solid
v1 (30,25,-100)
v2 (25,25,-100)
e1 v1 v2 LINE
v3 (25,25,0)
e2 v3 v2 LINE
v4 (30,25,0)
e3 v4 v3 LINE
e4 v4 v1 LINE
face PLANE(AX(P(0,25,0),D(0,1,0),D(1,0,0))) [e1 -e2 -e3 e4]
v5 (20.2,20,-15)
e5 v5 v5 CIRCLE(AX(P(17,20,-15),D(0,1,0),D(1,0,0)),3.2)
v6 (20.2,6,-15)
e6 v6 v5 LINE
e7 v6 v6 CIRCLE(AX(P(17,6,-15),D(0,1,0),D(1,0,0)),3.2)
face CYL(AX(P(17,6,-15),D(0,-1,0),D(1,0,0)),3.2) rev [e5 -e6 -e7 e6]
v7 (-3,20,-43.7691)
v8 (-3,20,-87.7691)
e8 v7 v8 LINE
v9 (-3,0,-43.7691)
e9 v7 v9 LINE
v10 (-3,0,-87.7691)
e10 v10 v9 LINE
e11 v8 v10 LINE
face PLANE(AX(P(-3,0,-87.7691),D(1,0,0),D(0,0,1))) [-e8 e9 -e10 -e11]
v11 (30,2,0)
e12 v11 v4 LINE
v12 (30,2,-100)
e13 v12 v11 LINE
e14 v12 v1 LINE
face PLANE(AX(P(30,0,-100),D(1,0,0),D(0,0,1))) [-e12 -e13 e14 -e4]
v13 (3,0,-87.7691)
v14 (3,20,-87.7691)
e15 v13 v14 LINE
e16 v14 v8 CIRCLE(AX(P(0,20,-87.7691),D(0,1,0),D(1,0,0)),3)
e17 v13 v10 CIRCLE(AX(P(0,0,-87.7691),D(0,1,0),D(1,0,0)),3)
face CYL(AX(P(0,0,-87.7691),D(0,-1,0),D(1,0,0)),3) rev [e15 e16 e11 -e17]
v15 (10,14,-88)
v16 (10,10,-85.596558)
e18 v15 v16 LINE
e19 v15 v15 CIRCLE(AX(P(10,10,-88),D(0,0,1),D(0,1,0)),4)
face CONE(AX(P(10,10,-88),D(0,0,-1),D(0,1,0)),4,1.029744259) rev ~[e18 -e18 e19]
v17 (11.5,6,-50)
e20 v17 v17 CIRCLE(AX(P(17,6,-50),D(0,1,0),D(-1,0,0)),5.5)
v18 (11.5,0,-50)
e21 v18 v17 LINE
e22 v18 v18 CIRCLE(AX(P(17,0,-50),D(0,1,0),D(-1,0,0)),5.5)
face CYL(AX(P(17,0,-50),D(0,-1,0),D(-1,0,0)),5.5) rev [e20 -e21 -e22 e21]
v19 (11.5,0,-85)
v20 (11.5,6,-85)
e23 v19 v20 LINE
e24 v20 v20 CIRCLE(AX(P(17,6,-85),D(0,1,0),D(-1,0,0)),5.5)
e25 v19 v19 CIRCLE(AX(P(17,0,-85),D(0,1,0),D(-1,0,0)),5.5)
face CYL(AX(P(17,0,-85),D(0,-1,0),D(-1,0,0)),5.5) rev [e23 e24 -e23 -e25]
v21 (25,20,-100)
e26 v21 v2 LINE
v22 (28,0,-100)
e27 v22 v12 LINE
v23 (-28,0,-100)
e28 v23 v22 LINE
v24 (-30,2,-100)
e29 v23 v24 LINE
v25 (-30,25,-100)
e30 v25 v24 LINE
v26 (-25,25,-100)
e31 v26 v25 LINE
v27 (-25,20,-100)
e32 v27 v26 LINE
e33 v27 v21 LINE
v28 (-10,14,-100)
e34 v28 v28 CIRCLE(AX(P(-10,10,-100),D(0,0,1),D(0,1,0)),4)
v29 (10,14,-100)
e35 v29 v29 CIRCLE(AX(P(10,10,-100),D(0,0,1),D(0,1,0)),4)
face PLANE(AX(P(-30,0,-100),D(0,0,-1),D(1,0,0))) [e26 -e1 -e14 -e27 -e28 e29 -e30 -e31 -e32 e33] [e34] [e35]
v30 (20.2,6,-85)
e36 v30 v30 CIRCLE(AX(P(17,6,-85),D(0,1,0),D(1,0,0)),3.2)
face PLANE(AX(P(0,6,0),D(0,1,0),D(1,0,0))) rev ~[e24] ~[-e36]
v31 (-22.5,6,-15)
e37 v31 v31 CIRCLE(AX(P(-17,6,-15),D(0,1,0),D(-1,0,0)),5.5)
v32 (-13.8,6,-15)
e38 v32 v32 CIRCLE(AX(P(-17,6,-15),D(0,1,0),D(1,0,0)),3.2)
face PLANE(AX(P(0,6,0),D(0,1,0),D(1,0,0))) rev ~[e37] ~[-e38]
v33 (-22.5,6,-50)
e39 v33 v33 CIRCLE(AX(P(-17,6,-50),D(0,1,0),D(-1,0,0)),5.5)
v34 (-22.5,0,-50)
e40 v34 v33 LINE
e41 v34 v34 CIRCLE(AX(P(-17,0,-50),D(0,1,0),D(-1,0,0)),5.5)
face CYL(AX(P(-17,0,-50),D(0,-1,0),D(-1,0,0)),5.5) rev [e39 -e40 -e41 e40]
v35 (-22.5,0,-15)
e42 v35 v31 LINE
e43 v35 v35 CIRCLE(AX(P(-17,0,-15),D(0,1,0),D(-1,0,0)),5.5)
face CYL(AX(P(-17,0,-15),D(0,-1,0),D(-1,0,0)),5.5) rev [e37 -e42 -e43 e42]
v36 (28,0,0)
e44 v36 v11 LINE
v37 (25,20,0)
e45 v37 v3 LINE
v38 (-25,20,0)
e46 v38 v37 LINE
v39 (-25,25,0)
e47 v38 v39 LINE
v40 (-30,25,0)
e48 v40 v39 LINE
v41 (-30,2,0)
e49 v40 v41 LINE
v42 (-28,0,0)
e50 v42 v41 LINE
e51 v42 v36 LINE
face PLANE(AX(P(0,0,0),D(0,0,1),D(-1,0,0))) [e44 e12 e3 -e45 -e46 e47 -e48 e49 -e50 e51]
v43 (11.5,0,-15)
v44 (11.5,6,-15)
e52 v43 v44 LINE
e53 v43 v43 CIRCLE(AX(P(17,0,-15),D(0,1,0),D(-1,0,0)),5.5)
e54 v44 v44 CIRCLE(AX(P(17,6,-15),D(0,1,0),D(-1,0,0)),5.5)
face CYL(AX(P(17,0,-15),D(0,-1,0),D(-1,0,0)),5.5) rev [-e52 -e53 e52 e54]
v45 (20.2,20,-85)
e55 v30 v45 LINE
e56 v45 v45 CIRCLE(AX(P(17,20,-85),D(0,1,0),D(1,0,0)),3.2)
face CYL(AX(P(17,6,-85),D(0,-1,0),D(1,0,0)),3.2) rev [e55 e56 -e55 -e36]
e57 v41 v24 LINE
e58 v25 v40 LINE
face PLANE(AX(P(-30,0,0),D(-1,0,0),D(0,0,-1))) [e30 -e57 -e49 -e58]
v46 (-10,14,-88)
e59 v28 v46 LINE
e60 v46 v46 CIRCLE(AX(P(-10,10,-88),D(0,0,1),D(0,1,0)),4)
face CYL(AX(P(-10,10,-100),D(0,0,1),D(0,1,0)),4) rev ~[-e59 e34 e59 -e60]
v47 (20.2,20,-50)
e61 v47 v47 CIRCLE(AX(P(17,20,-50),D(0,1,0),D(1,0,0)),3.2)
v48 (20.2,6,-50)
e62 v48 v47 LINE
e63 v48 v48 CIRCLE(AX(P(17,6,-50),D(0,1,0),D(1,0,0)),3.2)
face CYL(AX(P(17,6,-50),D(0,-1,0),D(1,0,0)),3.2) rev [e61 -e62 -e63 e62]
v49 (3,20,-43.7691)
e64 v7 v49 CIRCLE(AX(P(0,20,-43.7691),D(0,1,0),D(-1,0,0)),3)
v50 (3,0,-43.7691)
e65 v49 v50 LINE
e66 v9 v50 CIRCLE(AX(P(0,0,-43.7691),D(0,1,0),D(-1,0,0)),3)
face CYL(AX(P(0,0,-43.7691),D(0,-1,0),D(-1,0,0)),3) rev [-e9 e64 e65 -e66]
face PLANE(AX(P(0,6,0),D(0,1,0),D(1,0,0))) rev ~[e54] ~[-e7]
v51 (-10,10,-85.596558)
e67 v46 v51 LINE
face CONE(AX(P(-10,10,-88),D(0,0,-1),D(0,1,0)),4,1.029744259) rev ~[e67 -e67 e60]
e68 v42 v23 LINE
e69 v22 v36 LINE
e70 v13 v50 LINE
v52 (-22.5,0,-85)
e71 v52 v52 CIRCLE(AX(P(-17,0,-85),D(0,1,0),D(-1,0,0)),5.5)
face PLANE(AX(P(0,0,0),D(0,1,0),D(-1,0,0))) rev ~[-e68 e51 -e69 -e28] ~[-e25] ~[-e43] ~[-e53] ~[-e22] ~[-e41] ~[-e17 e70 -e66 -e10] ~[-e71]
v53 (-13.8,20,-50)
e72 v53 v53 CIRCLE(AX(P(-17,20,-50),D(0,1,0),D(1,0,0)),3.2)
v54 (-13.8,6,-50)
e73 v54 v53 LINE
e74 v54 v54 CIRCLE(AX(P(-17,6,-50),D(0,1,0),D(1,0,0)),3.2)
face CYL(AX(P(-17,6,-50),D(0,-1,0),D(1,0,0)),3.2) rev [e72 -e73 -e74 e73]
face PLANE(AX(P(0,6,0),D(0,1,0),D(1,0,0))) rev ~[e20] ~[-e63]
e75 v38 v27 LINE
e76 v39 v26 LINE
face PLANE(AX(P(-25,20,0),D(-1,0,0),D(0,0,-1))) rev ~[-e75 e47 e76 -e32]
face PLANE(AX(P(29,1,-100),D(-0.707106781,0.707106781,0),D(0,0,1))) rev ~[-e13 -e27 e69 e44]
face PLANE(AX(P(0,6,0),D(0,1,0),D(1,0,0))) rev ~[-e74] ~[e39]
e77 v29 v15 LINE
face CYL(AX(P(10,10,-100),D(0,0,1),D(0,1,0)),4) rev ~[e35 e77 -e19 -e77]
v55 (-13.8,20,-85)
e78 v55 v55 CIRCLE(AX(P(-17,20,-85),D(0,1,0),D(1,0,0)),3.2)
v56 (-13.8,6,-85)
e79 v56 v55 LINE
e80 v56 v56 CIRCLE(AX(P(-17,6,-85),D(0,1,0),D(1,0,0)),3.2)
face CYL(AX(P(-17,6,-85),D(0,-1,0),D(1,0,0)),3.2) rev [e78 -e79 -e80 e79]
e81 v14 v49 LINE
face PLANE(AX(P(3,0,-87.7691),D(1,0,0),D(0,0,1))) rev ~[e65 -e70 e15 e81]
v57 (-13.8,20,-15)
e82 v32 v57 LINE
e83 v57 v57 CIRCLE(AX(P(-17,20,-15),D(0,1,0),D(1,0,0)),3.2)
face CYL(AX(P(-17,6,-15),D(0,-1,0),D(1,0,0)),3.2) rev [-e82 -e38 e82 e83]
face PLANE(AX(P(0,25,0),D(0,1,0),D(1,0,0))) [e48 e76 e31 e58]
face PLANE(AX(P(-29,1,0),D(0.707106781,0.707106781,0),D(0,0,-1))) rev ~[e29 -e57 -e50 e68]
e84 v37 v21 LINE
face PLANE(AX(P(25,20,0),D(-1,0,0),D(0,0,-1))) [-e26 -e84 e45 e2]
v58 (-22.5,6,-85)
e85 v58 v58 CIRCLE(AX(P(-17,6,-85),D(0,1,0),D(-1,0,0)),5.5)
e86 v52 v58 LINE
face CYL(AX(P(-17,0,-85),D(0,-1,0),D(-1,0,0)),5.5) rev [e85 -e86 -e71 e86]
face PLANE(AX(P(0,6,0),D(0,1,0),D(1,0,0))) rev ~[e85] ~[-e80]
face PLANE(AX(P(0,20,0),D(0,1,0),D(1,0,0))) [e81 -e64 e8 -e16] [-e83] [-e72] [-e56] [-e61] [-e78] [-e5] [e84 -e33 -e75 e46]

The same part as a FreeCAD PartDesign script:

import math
import FreeCAD as App
import Part
import Sketcher

V = App.Vector
Q = App.Units.Quantity


def edges_at(feature, points):
    """Names of the edges that pass closest to the given points."""
    edges = feature.Shape.Edges
    near = lambda p: min(range(len(edges)), key=lambda i: edges[i].distToShape(Part.Vertex(*p))[0])
    return sorted({f"Edge{near(p) + 1}" for p in points})

doc = App.newDocument("Part")
body = doc.addObject("PartDesign::Body", "Body")

sketch1 = body.newObject("Sketcher::SketchObject", "Sketch")
sketch1.AttachmentSupport = (doc.getObject("XZ_Plane"), [""])
sketch1.MapMode = "FlatFace"
sketch1.addGeometry([
    Part.LineSegment(V(-30, 0, 0), V(30, 0, 0)),
    Part.LineSegment(V(30, 0, 0), V(30, -100, 0)),
    Part.LineSegment(V(30, -100, 0), V(-30, -100, 0)),
    Part.LineSegment(V(-30, -100, 0), V(-30, 0, 0)),
    Part.Circle(V(17, -85, 0), V(0, 0, 1), 5.5),
    Part.Circle(V(-17, -85, 0), V(0, 0, 1), 5.5),
    Part.ArcOfCircle(Part.Circle(V(0, -87.8, 0), V(0, 0, 1), 3), math.radians(180), math.radians(360)),
    Part.LineSegment(V(3, -87.8, 0), V(3, -43.8, 0)),
    Part.ArcOfCircle(Part.Circle(V(0, -43.8, 0), V(0, 0, 1), 3), math.radians(0), math.radians(180)),
    Part.LineSegment(V(-3, -43.8, 0), V(-3, -87.8, 0)),
    Part.Circle(V(17, -50, 0), V(0, 0, 1), 5.5),
    Part.Circle(V(17, -15, 0), V(0, 0, 1), 5.5),
    Part.Circle(V(-17, -50, 0), V(0, 0, 1), 5.5),
    Part.Circle(V(-17, -15, 0), V(0, 0, 1), 5.5),
], False)
sketch1.addConstraint([
    Sketcher.Constraint("Coincident", 0, 2, 1, 1),
    Sketcher.Constraint("Coincident", 1, 2, 2, 1),
    Sketcher.Constraint("Coincident", 2, 2, 3, 1),
    Sketcher.Constraint("Coincident", 3, 2, 0, 1),
    Sketcher.Constraint("Tangent", 6, 2, 7, 1),
    Sketcher.Constraint("Tangent", 7, 2, 8, 1),
    Sketcher.Constraint("Tangent", 8, 2, 9, 1),
    Sketcher.Constraint("Tangent", 9, 2, 6, 1),
    Sketcher.Constraint("Horizontal", 0),
    Sketcher.Constraint("Vertical", 1),
    Sketcher.Constraint("Horizontal", 2),
    Sketcher.Constraint("Vertical", 3),
    Sketcher.Constraint("Vertical", 7),
    Sketcher.Constraint("Vertical", 9),
    Sketcher.Constraint("Equal", 4, 5),
    Sketcher.Constraint("Equal", 5, 10),
    Sketcher.Constraint("Equal", 10, 11),
    Sketcher.Constraint("Equal", 11, 12),
    Sketcher.Constraint("Equal", 12, 13),
    Sketcher.Constraint("Symmetric", 0, 2, 3, 2, -1, 1),
    Sketcher.Constraint("Symmetric", 4, 3, 5, 3, -2),
    Sketcher.Constraint("Symmetric", 10, 3, 12, 3, -2),
    Sketcher.Constraint("Symmetric", 11, 3, 13, 3, -2),
    Sketcher.Constraint("PointOnObject", 6, 3, -2),
    Sketcher.Constraint("Vertical", 4, 3, 10, 3),
    Sketcher.Constraint("Vertical", 10, 3, 11, 3),
    Sketcher.Constraint("Diameter", 4, Q("11 mm")),
    Sketcher.Constraint("Radius", 6, Q("3 mm")),
    Sketcher.Constraint("DistanceY", 1, 2, 1, 1, Q("100 mm")),
    Sketcher.Constraint("DistanceY", 7, 1, 7, 2, Q("44 mm")),
    Sketcher.Constraint("DistanceY", 11, 3, -1, 1, Q("15 mm")),
    Sketcher.Constraint("DistanceX", -1, 1, 0, 2, Q("30 mm")),
    Sketcher.Constraint("DistanceY", 4, 3, 10, 3, Q("35 mm")),
    Sketcher.Constraint("DistanceY", 10, 3, 11, 3, Q("35 mm")),
    Sketcher.Constraint("DistanceX", 11, 3, 0, 2, Q("13 mm")),
    Sketcher.Constraint("DistanceY", 6, 3, -1, 1, Q("87.769 mm")),
])
pad1 = body.newObject("PartDesign::Pad", "Pad")
pad1.Profile = sketch1
pad1.Length = 6
pad1.Reversed = True

sketch2 = body.newObject("Sketcher::SketchObject", "Sketch001")
sketch2.AttachmentSupport = (doc.getObject("XZ_Plane"), [""])
sketch2.MapMode = "FlatFace"
sketch2.AttachmentOffset = App.Placement(V(0, 0, -6), App.Rotation())
sketch2.addGeometry([
    Part.LineSegment(V(30, -100, 0), V(-30, -100, 0)),
    Part.LineSegment(V(-30, -100, 0), V(-30, 0, 0)),
    Part.LineSegment(V(-30, 0, 0), V(30, 0, 0)),
    Part.LineSegment(V(30, 0, 0), V(30, -100, 0)),
    Part.Circle(V(-17, -15, 0), V(0, 0, 1), 3.2),
    Part.Circle(V(17, -15, 0), V(0, 0, 1), 3.2),
    Part.Circle(V(-17, -50, 0), V(0, 0, 1), 3.2),
    Part.Circle(V(-17, -85, 0), V(0, 0, 1), 3.2),
    Part.ArcOfCircle(Part.Circle(V(0, -43.8, 0), V(0, 0, 1), 3), math.radians(0), math.radians(180)),
    Part.LineSegment(V(-3, -43.8, 0), V(-3, -87.8, 0)),
    Part.ArcOfCircle(Part.Circle(V(0, -87.8, 0), V(0, 0, 1), 3), math.radians(180), math.radians(360)),
    Part.LineSegment(V(3, -87.8, 0), V(3, -43.8, 0)),
    Part.Circle(V(17, -50, 0), V(0, 0, 1), 3.2),
    Part.Circle(V(17, -85, 0), V(0, 0, 1), 3.2),
], False)
sketch2.addConstraint([
    Sketcher.Constraint("Coincident", 0, 2, 1, 1),
    Sketcher.Constraint("Coincident", 1, 2, 2, 1),
    Sketcher.Constraint("Coincident", 2, 2, 3, 1),
    Sketcher.Constraint("Coincident", 3, 2, 0, 1),
    Sketcher.Constraint("Tangent", 8, 2, 9, 1),
    Sketcher.Constraint("Tangent", 9, 2, 10, 1),
    Sketcher.Constraint("Tangent", 10, 2, 11, 1),
    Sketcher.Constraint("Tangent", 11, 2, 8, 1),
    Sketcher.Constraint("Horizontal", 0),
    Sketcher.Constraint("Vertical", 1),
    Sketcher.Constraint("Horizontal", 2),
    Sketcher.Constraint("Vertical", 3),
    Sketcher.Constraint("Vertical", 9),
    Sketcher.Constraint("Vertical", 11),
    Sketcher.Constraint("Equal", 4, 5),
    Sketcher.Constraint("Equal", 5, 6),
    Sketcher.Constraint("Equal", 6, 7),
    Sketcher.Constraint("Equal", 7, 12),
    Sketcher.Constraint("Equal", 12, 13),
    Sketcher.Constraint("Symmetric", 1, 2, 2, 2, -1, 1),
    Sketcher.Constraint("Symmetric", 4, 3, 5, 3, -2),
    Sketcher.Constraint("Symmetric", 6, 3, 12, 3, -2),
    Sketcher.Constraint("Symmetric", 7, 3, 13, 3, -2),
    Sketcher.Constraint("PointOnObject", 8, 3, -2),
    Sketcher.Constraint("Vertical", 4, 3, 6, 3),
    Sketcher.Constraint("Vertical", 6, 3, 7, 3),
    Sketcher.Constraint("Radius", 8, Q("3 mm")),
    Sketcher.Constraint("Diameter", 4, Q("6.4 mm")),
    Sketcher.Constraint("DistanceY", 4, 3, -1, 1, Q("15 mm")),
    Sketcher.Constraint("DistanceY", 6, 3, 4, 3, Q("35 mm")),
    Sketcher.Constraint("DistanceY", 7, 3, 6, 3, Q("35 mm")),
    Sketcher.Constraint("DistanceX", 0, 2, 7, 3, Q("13 mm")),
    Sketcher.Constraint("DistanceY", 0, 2, 7, 3, Q("15 mm")),
    Sketcher.Constraint("DistanceX", 0, 2, 0, 1, Q("60 mm")),
    Sketcher.Constraint("DistanceY", 9, 2, 9, 1, Q("44 mm")),
    Sketcher.Constraint("DistanceY", 8, 3, -1, 1, Q("43.769 mm")),
])
pad2 = body.newObject("PartDesign::Pad", "Pad001")
pad2.Profile = sketch2
pad2.Length = 14
pad2.Reversed = True

sketch3 = body.newObject("Sketcher::SketchObject", "Sketch002")
sketch3.AttachmentSupport = (doc.getObject("XY_Plane"), [""])
sketch3.MapMode = "FlatFace"
sketch3.AttachmentOffset = App.Placement(V(0, 0, -100), App.Rotation())
sketch3.addGeometry([
    Part.Circle(V(-10, 10, 0), V(0, 0, 1), 4),
    Part.Circle(V(10, 10, 0), V(0, 0, 1), 4),
], False)
sketch3.addConstraint([
    Sketcher.Constraint("Equal", 0, 1),
    Sketcher.Constraint("Symmetric", 0, 3, 1, 3, -2),
    Sketcher.Constraint("Diameter", 0, Q("8 mm")),
    Sketcher.Constraint("DistanceX", 0, 3, -1, 1, Q("10 mm")),
    Sketcher.Constraint("DistanceY", -1, 1, 0, 3, Q("10 mm")),
])
doc.recompute()
hole = body.newObject("PartDesign::Hole", "Hole")
hole.Profile = sketch3
hole.ThreadType = "None"
hole.Diameter = 8
hole.DepthType = "Dimension"
hole.Depth = 12
hole.DrillPoint = "Angled"
hole.DrillPointAngle = 118
hole.Reversed = True

sketch4 = body.newObject("Sketcher::SketchObject", "Sketch003")
sketch4.AttachmentSupport = (doc.getObject("XZ_Plane"), [""])
sketch4.MapMode = "FlatFace"
sketch4.AttachmentOffset = App.Placement(V(0, 0, -20), App.Rotation())
sketch4.addGeometry([
    Part.LineSegment(V(30, 0, 0), V(30, -100, 0)),
    Part.LineSegment(V(30, -100, 0), V(25, -100, 0)),
    Part.LineSegment(V(25, -100, 0), V(25, 0, 0)),
    Part.LineSegment(V(25, 0, 0), V(30, 0, 0)),
    Part.LineSegment(V(-25, 0, 0), V(-25, -100, 0)),
    Part.LineSegment(V(-25, -100, 0), V(-30, -100, 0)),
    Part.LineSegment(V(-30, -100, 0), V(-30, 0, 0)),
    Part.LineSegment(V(-30, 0, 0), V(-25, 0, 0)),
], False)
sketch4.addConstraint([
    Sketcher.Constraint("Coincident", 0, 2, 1, 1),
    Sketcher.Constraint("Coincident", 1, 2, 2, 1),
    Sketcher.Constraint("Coincident", 2, 2, 3, 1),
    Sketcher.Constraint("Coincident", 3, 2, 0, 1),
    Sketcher.Constraint("Coincident", 4, 2, 5, 1),
    Sketcher.Constraint("Coincident", 5, 2, 6, 1),
    Sketcher.Constraint("Coincident", 6, 2, 7, 1),
    Sketcher.Constraint("Coincident", 7, 2, 4, 1),
    Sketcher.Constraint("Vertical", 0),
    Sketcher.Constraint("Horizontal", 1),
    Sketcher.Constraint("Vertical", 2),
    Sketcher.Constraint("Horizontal", 3),
    Sketcher.Constraint("Vertical", 4),
    Sketcher.Constraint("Horizontal", 5),
    Sketcher.Constraint("Vertical", 6),
    Sketcher.Constraint("Horizontal", 7),
    Sketcher.Constraint("Symmetric", 3, 2, 6, 2, -1, 1),
    Sketcher.Constraint("Symmetric", 1, 2, 4, 2, -2),
    Sketcher.Constraint("PointOnObject", 2, 2, -1),
    Sketcher.Constraint("DistanceX", 1, 2, 1, 1, Q("5 mm")),
    Sketcher.Constraint("DistanceY", 0, 2, 0, 1, Q("100 mm")),
    Sketcher.Constraint("DistanceX", -1, 1, 0, 2, Q("30 mm")),
])
pad3 = body.newObject("PartDesign::Pad", "Pad002")
pad3.Profile = sketch4
pad3.Length = 5
pad3.Reversed = True
doc.recompute()

chamfer = body.newObject("PartDesign::Chamfer", "Chamfer")
chamfer.Base = (pad3, edges_at(pad3, [(-30, 0, -50)]))
chamfer.Size = 2
doc.recompute()

chamfer2 = body.newObject("PartDesign::Chamfer", "Chamfer001")
chamfer2.Base = (chamfer, edges_at(chamfer, [(30, 0, -50)]))
chamfer2.Size = 2

doc.recompute()
